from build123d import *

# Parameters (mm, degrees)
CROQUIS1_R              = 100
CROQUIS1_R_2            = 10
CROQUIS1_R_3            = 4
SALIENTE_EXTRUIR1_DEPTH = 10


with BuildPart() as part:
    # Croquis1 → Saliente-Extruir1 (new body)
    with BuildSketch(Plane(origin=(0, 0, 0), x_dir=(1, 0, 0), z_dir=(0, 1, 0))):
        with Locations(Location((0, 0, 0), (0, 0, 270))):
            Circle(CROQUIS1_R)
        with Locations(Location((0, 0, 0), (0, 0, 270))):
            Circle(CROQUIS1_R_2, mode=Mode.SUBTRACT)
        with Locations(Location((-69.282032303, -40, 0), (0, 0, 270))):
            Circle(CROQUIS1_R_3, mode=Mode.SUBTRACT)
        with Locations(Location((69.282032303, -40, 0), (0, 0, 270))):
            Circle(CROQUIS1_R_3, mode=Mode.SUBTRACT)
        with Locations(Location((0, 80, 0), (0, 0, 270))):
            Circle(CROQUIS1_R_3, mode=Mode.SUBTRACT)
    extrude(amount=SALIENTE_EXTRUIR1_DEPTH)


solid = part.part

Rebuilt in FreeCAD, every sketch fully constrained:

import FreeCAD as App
import Part
import Sketcher
from FreeCAD import Vector
Q = App.Units.Quantity

doc = App.newDocument("Part")
body = doc.addObject("PartDesign::Body", "Body")

# Sketch on XZ plane
sketch1 = body.newObject("Sketcher::SketchObject", "Sketch")
sketch1.AttachmentSupport = (doc.getObject("XZ_Plane"), [""])
sketch1.MapMode = "FlatFace"
sketch1.addGeometry(Part.Circle(Vector(0, 0, 0), Vector(0, 0, 1), 100), False)
sketch1.addGeometry(Part.Circle(Vector(0, -80, 0), Vector(0, 0, 1), 4), False)
sketch1.addGeometry(Part.Circle(Vector(-69.3, 40, 0), Vector(0, 0, 1), 4), False)
sketch1.addGeometry(Part.Circle(Vector(0, 0, 0), Vector(0, 0, 1), 10), False)
sketch1.addGeometry(Part.Circle(Vector(69.3, 40, 0), Vector(0, 0, 1), 4), False)
sketch1.addConstraint(Sketcher.Constraint("Coincident", 0, 3, -1, 1))
sketch1.addConstraint(Sketcher.Constraint("Coincident", 3, 3, -1, 1))
sketch1.addConstraint(Sketcher.Constraint("Equal", 1, 2))
sketch1.addConstraint(Sketcher.Constraint("Equal", 2, 4))
sketch1.addConstraint(Sketcher.Constraint("Symmetric", 2, 3, 4, 3, -2))
sketch1.addConstraint(Sketcher.Constraint("PointOnObject", 1, 3, -2))
sketch1.addConstraint(Sketcher.Constraint("Diameter", 0, Q("200 mm")))
sketch1.addConstraint(Sketcher.Constraint("Diameter", 1, Q("8 mm")))
sketch1.addConstraint(Sketcher.Constraint("Diameter", 3, Q("20 mm")))
sketch1.addConstraint(Sketcher.Constraint("DistanceY", 1, 3, -1, 1, Q("80 mm")))
sketch1.addConstraint(Sketcher.Constraint("DistanceY", -1, 1, 2, 3, Q("40 mm")))
sketch1.addConstraint(Sketcher.Constraint("DistanceX", 2, 3, -1, 1, Q("69.282032 mm")))
pad1 = body.newObject("PartDesign::Pad", "Pad")
pad1.Profile = sketch1
pad1.Length = 10
pad1.Reversed = True

doc.recompute()
